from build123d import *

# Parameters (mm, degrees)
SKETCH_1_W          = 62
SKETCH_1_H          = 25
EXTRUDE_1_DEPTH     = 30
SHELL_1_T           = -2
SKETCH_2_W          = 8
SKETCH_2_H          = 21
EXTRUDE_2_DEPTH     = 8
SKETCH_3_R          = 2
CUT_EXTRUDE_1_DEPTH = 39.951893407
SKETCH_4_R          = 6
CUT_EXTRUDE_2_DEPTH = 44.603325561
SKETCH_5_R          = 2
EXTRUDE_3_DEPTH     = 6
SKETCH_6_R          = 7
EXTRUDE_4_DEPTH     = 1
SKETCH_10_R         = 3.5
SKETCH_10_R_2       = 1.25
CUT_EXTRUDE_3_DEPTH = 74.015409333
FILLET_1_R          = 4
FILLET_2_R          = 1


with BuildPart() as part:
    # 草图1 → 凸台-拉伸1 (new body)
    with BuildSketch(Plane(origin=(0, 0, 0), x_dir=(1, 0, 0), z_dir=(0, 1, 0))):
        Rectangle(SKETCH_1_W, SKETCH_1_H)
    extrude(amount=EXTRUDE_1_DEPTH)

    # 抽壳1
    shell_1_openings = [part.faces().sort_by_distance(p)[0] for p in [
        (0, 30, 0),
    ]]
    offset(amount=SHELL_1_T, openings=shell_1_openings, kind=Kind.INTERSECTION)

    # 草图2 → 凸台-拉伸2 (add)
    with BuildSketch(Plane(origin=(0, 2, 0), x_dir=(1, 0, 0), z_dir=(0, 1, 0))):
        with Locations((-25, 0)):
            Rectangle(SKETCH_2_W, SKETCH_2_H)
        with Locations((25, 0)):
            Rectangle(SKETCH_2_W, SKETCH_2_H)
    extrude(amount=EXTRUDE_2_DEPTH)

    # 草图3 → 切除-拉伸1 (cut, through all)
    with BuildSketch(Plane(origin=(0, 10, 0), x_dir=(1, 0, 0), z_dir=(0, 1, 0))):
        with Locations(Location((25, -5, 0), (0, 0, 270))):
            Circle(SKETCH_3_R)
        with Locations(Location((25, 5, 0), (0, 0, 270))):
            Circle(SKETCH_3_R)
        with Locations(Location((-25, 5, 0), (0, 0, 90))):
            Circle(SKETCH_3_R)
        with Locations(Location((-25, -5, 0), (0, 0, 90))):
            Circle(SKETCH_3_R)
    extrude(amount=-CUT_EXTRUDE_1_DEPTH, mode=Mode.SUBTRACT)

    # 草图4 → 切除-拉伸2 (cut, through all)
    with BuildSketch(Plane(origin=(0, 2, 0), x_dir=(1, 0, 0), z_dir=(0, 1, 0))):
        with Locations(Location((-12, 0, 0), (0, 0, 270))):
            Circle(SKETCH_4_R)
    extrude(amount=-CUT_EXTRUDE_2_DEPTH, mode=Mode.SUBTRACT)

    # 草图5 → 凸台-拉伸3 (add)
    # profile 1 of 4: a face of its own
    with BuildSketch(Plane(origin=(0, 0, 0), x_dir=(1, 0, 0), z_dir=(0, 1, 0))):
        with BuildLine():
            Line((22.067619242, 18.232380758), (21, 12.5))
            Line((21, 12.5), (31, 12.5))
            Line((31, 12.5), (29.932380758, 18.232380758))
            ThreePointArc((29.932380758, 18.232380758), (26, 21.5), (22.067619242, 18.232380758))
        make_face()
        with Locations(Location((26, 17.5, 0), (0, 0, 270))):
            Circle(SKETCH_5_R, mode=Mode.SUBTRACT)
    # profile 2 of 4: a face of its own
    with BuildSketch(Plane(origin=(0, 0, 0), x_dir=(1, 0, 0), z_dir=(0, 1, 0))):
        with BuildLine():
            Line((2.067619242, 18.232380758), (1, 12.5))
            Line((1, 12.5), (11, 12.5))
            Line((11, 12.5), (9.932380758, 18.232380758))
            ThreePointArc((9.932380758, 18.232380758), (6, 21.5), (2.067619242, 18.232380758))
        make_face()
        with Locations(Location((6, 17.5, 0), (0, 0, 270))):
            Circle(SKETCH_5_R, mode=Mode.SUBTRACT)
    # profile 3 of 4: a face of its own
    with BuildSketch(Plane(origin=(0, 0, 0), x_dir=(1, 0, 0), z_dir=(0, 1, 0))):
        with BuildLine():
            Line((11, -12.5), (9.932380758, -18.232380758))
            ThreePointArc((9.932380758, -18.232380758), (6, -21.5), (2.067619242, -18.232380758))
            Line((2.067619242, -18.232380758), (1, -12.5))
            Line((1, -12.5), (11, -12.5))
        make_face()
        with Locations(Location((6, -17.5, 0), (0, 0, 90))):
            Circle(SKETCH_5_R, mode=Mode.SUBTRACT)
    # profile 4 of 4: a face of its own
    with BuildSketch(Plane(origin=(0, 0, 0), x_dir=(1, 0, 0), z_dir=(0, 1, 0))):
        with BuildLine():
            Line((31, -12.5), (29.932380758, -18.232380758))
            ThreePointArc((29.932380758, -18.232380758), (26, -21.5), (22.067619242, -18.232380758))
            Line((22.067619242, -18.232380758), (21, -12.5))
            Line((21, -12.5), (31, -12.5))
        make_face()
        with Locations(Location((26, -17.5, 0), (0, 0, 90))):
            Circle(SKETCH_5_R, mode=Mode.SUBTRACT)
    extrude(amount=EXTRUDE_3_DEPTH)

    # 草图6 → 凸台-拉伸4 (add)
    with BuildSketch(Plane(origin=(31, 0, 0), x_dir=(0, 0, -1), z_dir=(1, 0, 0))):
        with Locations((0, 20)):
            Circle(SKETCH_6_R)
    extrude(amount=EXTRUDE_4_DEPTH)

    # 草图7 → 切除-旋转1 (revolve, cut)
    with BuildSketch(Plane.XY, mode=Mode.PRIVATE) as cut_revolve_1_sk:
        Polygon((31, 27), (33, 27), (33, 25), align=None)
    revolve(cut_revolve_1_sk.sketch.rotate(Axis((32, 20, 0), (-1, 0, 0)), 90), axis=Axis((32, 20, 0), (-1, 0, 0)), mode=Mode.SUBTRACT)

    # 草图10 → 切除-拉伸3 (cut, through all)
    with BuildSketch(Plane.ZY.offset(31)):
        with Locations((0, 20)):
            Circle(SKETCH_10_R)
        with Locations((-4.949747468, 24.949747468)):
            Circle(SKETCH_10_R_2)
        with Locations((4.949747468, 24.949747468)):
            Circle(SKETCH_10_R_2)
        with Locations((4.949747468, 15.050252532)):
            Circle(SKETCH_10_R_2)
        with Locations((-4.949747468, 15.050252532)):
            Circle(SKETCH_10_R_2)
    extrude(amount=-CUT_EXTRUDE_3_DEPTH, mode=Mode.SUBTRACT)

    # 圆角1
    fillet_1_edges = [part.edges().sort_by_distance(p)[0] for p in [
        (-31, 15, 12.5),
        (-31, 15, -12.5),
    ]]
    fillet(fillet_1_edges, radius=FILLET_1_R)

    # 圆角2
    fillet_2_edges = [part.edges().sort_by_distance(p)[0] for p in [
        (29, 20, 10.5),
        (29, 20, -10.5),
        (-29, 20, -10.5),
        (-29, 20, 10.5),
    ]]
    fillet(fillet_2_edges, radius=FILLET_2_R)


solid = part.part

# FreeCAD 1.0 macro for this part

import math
import FreeCAD as App
import Part
import Sketcher
from FreeCAD import Vector


def edges_at(feature, points):
    """Names of the edges that pass closest to the given points."""
    edges = feature.Shape.Edges
    near = lambda p: min(range(len(edges)), key=lambda i: edges[i].distToShape(Part.Vertex(*p))[0])
    return sorted({f"Edge{near(p) + 1}" for p in points})


def faces_at(feature, points):
    """Names of the faces that lie closest to the given points."""
    faces = feature.Shape.Faces
    near = lambda p: min(range(len(faces)), key=lambda i: faces[i].distToShape(Part.Vertex(*p))[0])
    return sorted({f"Face{near(p) + 1}" for p in points})

doc = App.newDocument("Part")
body = doc.addObject("PartDesign::Body", "Body")

sketch1 = body.newObject("Sketcher::SketchObject", "Sketch")
sketch1.AttachmentSupport = (doc.getObject("XZ_Plane"), [""])
sketch1.MapMode = "FlatFace"
sketch1.addGeometry([
    Part.LineSegment(Vector(-31, -12, 0), Vector(-31, 12, 0)),
    Part.LineSegment(Vector(-31, 12, 0), Vector(31, 12, 0)),
    Part.LineSegment(Vector(31, 12, 0), Vector(31, -12, 0)),
    Part.LineSegment(Vector(31, -12, 0), Vector(-31, -12, 0)),
], False)
sketch1.addConstraint([
    Sketcher.Constraint("Coincident", 0, 2, 1, 1),
    Sketcher.Constraint("Coincident", 1, 2, 2, 1),
    Sketcher.Constraint("Coincident", 2, 2, 3, 1),
    Sketcher.Constraint("Coincident", 3, 2, 0, 1),
    Sketcher.Constraint("Vertical", 0),
    Sketcher.Constraint("Horizontal", 1),
    Sketcher.Constraint("Vertical", 2),
    Sketcher.Constraint("Horizontal", 3),
    Sketcher.Constraint("Symmetric", 0, 2, 2, 2, -1, 1),
    Sketcher.Constraint("DistanceX", 1, 1, 1, 2, 62.0),
    Sketcher.Constraint("DistanceY", 0, 1, 0, 2, 25.0),
])
pad1 = body.newObject("PartDesign::Pad", "Pad")
pad1.Profile = sketch1
pad1.Length = 30
pad1.Reversed = True
doc.recompute()

thickness = body.newObject("PartDesign::Thickness", "Thickness")
thickness.Base = (pad1, faces_at(pad1, [(0, 30, 0)]))
thickness.Value = 2
thickness.Reversed = True
thickness.Join = "Intersection"

sketch2 = body.newObject("Sketcher::SketchObject", "Sketch001")
sketch2.AttachmentSupport = (doc.getObject("XZ_Plane"), [""])
sketch2.MapMode = "FlatFace"
sketch2.AttachmentOffset = App.Placement(Vector(0, 0, -2), App.Rotation())
sketch2.addGeometry([
    Part.LineSegment(Vector(-29, -10, 0), Vector(-29, 10, 0)),
    Part.LineSegment(Vector(-29, 10, 0), Vector(-21, 10, 0)),
    Part.LineSegment(Vector(-21, 10, 0), Vector(-21, -10, 0)),
    Part.LineSegment(Vector(-21, -10, 0), Vector(-29, -10, 0)),
    Part.LineSegment(Vector(21, -10, 0), Vector(21, 10, 0)),
    Part.LineSegment(Vector(21, 10, 0), Vector(29, 10, 0)),
    Part.LineSegment(Vector(29, 10, 0), Vector(29, -10, 0)),
    Part.LineSegment(Vector(29, -10, 0), Vector(21, -10, 0)),
], False)
sketch2.addConstraint([
    Sketcher.Constraint("Coincident", 0, 2, 1, 1),
    Sketcher.Constraint("Coincident", 1, 2, 2, 1),
    Sketcher.Constraint("Coincident", 2, 2, 3, 1),
    Sketcher.Constraint("Coincident", 3, 2, 0, 1),
    Sketcher.Constraint("Coincident", 4, 2, 5, 1),
    Sketcher.Constraint("Coincident", 5, 2, 6, 1),
    Sketcher.Constraint("Coincident", 6, 2, 7, 1),
    Sketcher.Constraint("Coincident", 7, 2, 4, 1),
    Sketcher.Constraint("Vertical", 0),
    Sketcher.Constraint("Horizontal", 1),
    Sketcher.Constraint("Vertical", 2),
    Sketcher.Constraint("Horizontal", 3),
    Sketcher.Constraint("Vertical", 4),
    Sketcher.Constraint("Horizontal", 5),
    Sketcher.Constraint("Vertical", 6),
    Sketcher.Constraint("Horizontal", 7),
    Sketcher.Constraint("Symmetric", 2, 2, 4, 2, -1, 1),
    Sketcher.Constraint("Symmetric", 0, 2, 6, 2, -1, 1),
    Sketcher.Constraint("Horizontal", 1, 2, 4, 2),
    Sketcher.Constraint("DistanceX", 1, 1, 1, 2, 8.0),
    Sketcher.Constraint("DistanceY", 0, 1, 0, 2, 21.0),
    Sketcher.Constraint("DistanceX", 0, 2, -1, 1, 29.0),
])
pad2 = body.newObject("PartDesign::Pad", "Pad001")
pad2.Profile = sketch2
pad2.Length = 8
pad2.Reversed = True

sketch3 = body.newObject("Sketcher::SketchObject", "Sketch002")
sketch3.AttachmentSupport = (doc.getObject("XZ_Plane"), [""])
sketch3.MapMode = "FlatFace"
sketch3.AttachmentOffset = App.Placement(Vector(0, 0, -10), App.Rotation())
sketch3.addGeometry([
    Part.Circle(Vector(25, 5, 0), Vector(0, 0, 1), 2),
    Part.Circle(Vector(25, -5, 0), Vector(0, 0, 1), 2),
    Part.Circle(Vector(-25, -5, 0), Vector(0, 0, 1), 2),
    Part.Circle(Vector(-25, 5, 0), Vector(0, 0, 1), 2),
], False)
sketch3.addConstraint([
    Sketcher.Constraint("Equal", 0, 1),
    Sketcher.Constraint("Equal", 1, 2),
    Sketcher.Constraint("Equal", 2, 3),
    Sketcher.Constraint("Symmetric", 0, 3, 2, 3, -1, 1),
    Sketcher.Constraint("Symmetric", 1, 3, 3, 3, -1, 1),
    Sketcher.Constraint("Symmetric", 1, 3, 2, 3, -2),
    Sketcher.Constraint("Diameter", 0, 4.0),
    Sketcher.Constraint("DistanceX", -1, 1, 0, 3, 25.0),
    Sketcher.Constraint("DistanceY", -1, 1, 0, 3, 5.0),
])
pocket1 = body.newObject("PartDesign::Pocket", "Pocket")
pocket1.Profile = sketch3
pocket1.Type = "ThroughAll"
pocket1.Reversed = True

sketch4 = body.newObject("Sketcher::SketchObject", "Sketch003")
sketch4.AttachmentSupport = (doc.getObject("XZ_Plane"), [""])
sketch4.MapMode = "FlatFace"
sketch4.AttachmentOffset = App.Placement(Vector(0, 0, -2), App.Rotation())
sketch4.addGeometry(Part.Circle(Vector(-12, 0, 0), Vector(0, 0, 1), 6), False)
sketch4.addConstraint([
    Sketcher.Constraint("PointOnObject", 0, 3, -1),
    Sketcher.Constraint("Diameter", 0, 12.0),
    Sketcher.Constraint("DistanceX", 0, 3, -1, 1, 12.0),
])
pocket2 = body.newObject("PartDesign::Pocket", "Pocket001")
pocket2.Profile = sketch4
pocket2.Type = "ThroughAll"
pocket2.Reversed = True

sketch5 = body.newObject("Sketcher::SketchObject", "Sketch004")
sketch5.AttachmentSupport = (doc.getObject("XZ_Plane"), [""])
sketch5.MapMode = "FlatFace"
sketch5.addGeometry([
    Part.LineSegment(Vector(22.1, -18.2, 0), Vector(21, -12.5, 0)),
    Part.LineSegment(Vector(21, -12.5, 0), Vector(31, -12.5, 0)),
    Part.LineSegment(Vector(31, -12.5, 0), Vector(29.9, -18.2, 0)),
    Part.ArcOfCircle(Part.Circle(Vector(26, -17.5, 0), Vector(0, 0, 1), 4), math.radians(-169), math.radians(-11)),
    Part.Circle(Vector(26, -17.5, 0), Vector(0, 0, 1), 2),
    Part.LineSegment(Vector(2.1, -18.2, 0), Vector(1, -12.5, 0)),
    Part.LineSegment(Vector(1, -12.5, 0), Vector(11, -12.5, 0)),
    Part.LineSegment(Vector(11, -12.5, 0), Vector(9.9, -18.2, 0)),
    Part.ArcOfCircle(Part.Circle(Vector(6, -17.5, 0), Vector(0, 0, 1), 4), math.radians(-169), math.radians(-11)),
    Part.Circle(Vector(6, -17.5, 0), Vector(0, 0, 1), 2),
    Part.LineSegment(Vector(9.9, 18.2, 0), Vector(11, 12.5, 0)),
    Part.LineSegment(Vector(11, 12.5, 0), Vector(1, 12.5, 0)),
    Part.LineSegment(Vector(1, 12.5, 0), Vector(2.1, 18.2, 0)),
    Part.ArcOfCircle(Part.Circle(Vector(6, 17.5, 0), Vector(0, 0, 1), 4), math.radians(11), math.radians(169)),
    Part.Circle(Vector(6, 17.5, 0), Vector(0, 0, 1), 2),
    Part.LineSegment(Vector(29.9, 18.2, 0), Vector(31, 12.5, 0)),
    Part.LineSegment(Vector(31, 12.5, 0), Vector(21, 12.5, 0)),
    Part.LineSegment(Vector(21, 12.5, 0), Vector(22.1, 18.2, 0)),
    Part.ArcOfCircle(Part.Circle(Vector(26, 17.5, 0), Vector(0, 0, 1), 4), math.radians(11), math.radians(169)),
    Part.Circle(Vector(26, 17.5, 0), Vector(0, 0, 1), 2),
], False)
sketch5.addConstraint([
    Sketcher.Constraint("Coincident", 0, 2, 1, 1),
    Sketcher.Constraint("Coincident", 1, 2, 2, 1),
    Sketcher.Constraint("Tangent", 2, 2, 3, 2),
    Sketcher.Constraint("Tangent", 3, 1, 0, 1),
    Sketcher.Constraint("Coincident", 5, 2, 6, 1),
    Sketcher.Constraint("Coincident", 6, 2, 7, 1),
    Sketcher.Constraint("Tangent", 7, 2, 8, 2),
    Sketcher.Constraint("Tangent", 8, 1, 5, 1),
    Sketcher.Constraint("Coincident", 10, 2, 11, 1),
    Sketcher.Constraint("Coincident", 11, 2, 12, 1),
    Sketcher.Constraint("Tangent", 12, 2, 13, 2),
    Sketcher.Constraint("Tangent", 13, 1, 10, 1),
    Sketcher.Constraint("Coincident", 15, 2, 16, 1),
    Sketcher.Constraint("Coincident", 16, 2, 17, 1),
    Sketcher.Constraint("Tangent", 17, 2, 18, 2),
    Sketcher.Constraint("Tangent", 18, 1, 15, 1),
    Sketcher.Constraint("Horizontal", 1),
    Sketcher.Constraint("Horizontal", 6),
    Sketcher.Constraint("Horizontal", 11),
    Sketcher.Constraint("Horizontal", 16),
    Sketcher.Constraint("Coincident", 4, 3, 3, 3),
    Sketcher.Constraint("Coincident", 9, 3, 8, 3),
    Sketcher.Constraint("Coincident", 14, 3, 13, 3),
    Sketcher.Constraint("Coincident", 19, 3, 18, 3),
    Sketcher.Constraint("Equal", 3, 8),
    Sketcher.Constraint("Equal", 4, 9),
    Sketcher.Constraint("Equal", 8, 13),
    Sketcher.Constraint("Equal", 9, 14),
    Sketcher.Constraint("Equal", 13, 18),
    Sketcher.Constraint("Equal", 14, 19),
    Sketcher.Constraint("Symmetric", 8, 3, 13, 3, -1),
    Sketcher.Constraint("Symmetric", 3, 3, 18, 3, -1),
    Sketcher.Constraint("Symmetric", 6, 2, 10, 2, -1),
    Sketcher.Constraint("Symmetric", 1, 2, 15, 2, -1),
    Sketcher.Constraint("Parallel", 0, 5),
    Sketcher.Constraint("Parallel", 2, 7),
    Sketcher.Constraint("Parallel", 5, 10),
    Sketcher.Constraint("Parallel", 7, 12),
    Sketcher.Constraint("Parallel", 12, 17),
    Sketcher.Constraint("Horizontal", 4, 3, 8, 3),
    Sketcher.Constraint("Horizontal", 1, 2, 5, 2),
    Sketcher.Constraint("Diameter", 4, 4.0),
    Sketcher.Constraint("Radius", 3, 4.0),
    Sketcher.Constraint("DistanceX", 1, 1, 1, 2, 10.0),
    Sketcher.Constraint("DistanceX", -1, 1, 3, 3, 26.0),
    Sketcher.Constraint("DistanceX", -1, 1, 8, 3, 6.0),
    Sketcher.Constraint("DistanceY", 8, 3, 13, 3, 35.0),
    Sketcher.Constraint("DistanceY", 3, 3, 0, 2, 5.0),
])
pad3 = body.newObject("PartDesign::Pad", "Pad002")
pad3.Profile = sketch5
pad3.Length = 6
pad3.Reversed = True

sketch6 = body.newObject("Sketcher::SketchObject", "Sketch005")
sketch6.AttachmentSupport = (doc.getObject("YZ_Plane"), [""])
sketch6.MapMode = "FlatFace"
sketch6.AttachmentOffset = App.Placement(Vector(0, 0, 31), App.Rotation())
sketch6.addGeometry(Part.Circle(Vector(20, 0, 0), Vector(0, 0, 1), 7), False)
sketch6.addConstraint([
    Sketcher.Constraint("PointOnObject", 0, 3, -1),
    Sketcher.Constraint("Diameter", 0, 14.0),
    Sketcher.Constraint("DistanceX", -1, 1, 0, 3, 20.0),
])
pad4 = body.newObject("PartDesign::Pad", "Pad003")
pad4.Profile = sketch6
pad4.Length = 1

sketch7 = body.newObject("Sketcher::SketchObject", "Sketch006")
sketch7.AttachmentSupport = (doc.getObject("XY_Plane"), [""])
sketch7.MapMode = "FlatFace"
sketch7.addGeometry([
    Part.LineSegment(Vector(33, 27, 0), Vector(31, 27, 0)),
    Part.LineSegment(Vector(31, 27, 0), Vector(33, 25, 0)),
    Part.LineSegment(Vector(33, 25, 0), Vector(33, 27, 0)),
], False)
sketch7.addGeometry(Part.LineSegment(Vector(33, 20, 0), Vector(31, 20, 0)), True)
sketch7.addConstraint([
    Sketcher.Constraint("Coincident", 0, 2, 1, 1),
    Sketcher.Constraint("Coincident", 1, 2, 2, 1),
    Sketcher.Constraint("Coincident", 2, 2, 0, 1),
    Sketcher.Constraint("Horizontal", 0),
    Sketcher.Constraint("Vertical", 2),
    Sketcher.Constraint("Horizontal", 3),
    Sketcher.Constraint("Vertical", 2, 2, 3, 1),
    Sketcher.Constraint("Vertical", 0, 2, 3, 2),
    Sketcher.Constraint("Equal", 3, 2),
    Sketcher.Constraint("DistanceX", 0, 2, 0, 1, 2.0),
    Sketcher.Constraint("DistanceX", -1, 1, 0, 2, 31.0),
    Sketcher.Constraint("DistanceY", -1, 1, 0, 2, 27.0),
    Sketcher.Constraint("DistanceY", -1, 1, 3, 1, 20.0),
])
groove = body.newObject("PartDesign::Groove", "Groove")
groove.Profile = sketch7
groove.ReferenceAxis = (sketch7, ["Axis0"])
groove.Angle = 360

sketch8 = body.newObject("Sketcher::SketchObject", "Sketch007")
sketch8.AttachmentSupport = (doc.getObject("YZ_Plane"), [""])
sketch8.MapMode = "FlatFace"
sketch8.AttachmentOffset = App.Placement(Vector(0, 0, -31), App.Rotation())
sketch8.addGeometry([
    Part.Circle(Vector(20, 0, 0), Vector(0, 0, 1), 3.5),
    Part.Circle(Vector(24.9, -4.9, 0), Vector(0, 0, 1), 1.2),
    Part.Circle(Vector(24.9, 4.9, 0), Vector(0, 0, 1), 1.2),
    Part.Circle(Vector(15.1, 4.9, 0), Vector(0, 0, 1), 1.2),
    Part.Circle(Vector(15.1, -4.9, 0), Vector(0, 0, 1), 1.2),
], False)
sketch8.addConstraint([
    Sketcher.Constraint("Equal", 1, 2),
    Sketcher.Constraint("Equal", 2, 3),
    Sketcher.Constraint("Equal", 3, 4),
    Sketcher.Constraint("Symmetric", 1, 3, 2, 3, -1),
    Sketcher.Constraint("Symmetric", 3, 3, 4, 3, -1),
    Sketcher.Constraint("PointOnObject", 0, 3, -1),
    Sketcher.Constraint("Horizontal", 2, 3, 3, 3),
    Sketcher.Constraint("Diameter", 0, 7.0),
    Sketcher.Constraint("Diameter", 1, 2.5),
    Sketcher.Constraint("DistanceX", -1, 1, 0, 3, 20.0),
    Sketcher.Constraint("DistanceX", -1, 1, 1, 3, 24.949747),
    Sketcher.Constraint("DistanceY", 1, 3, -1, 1, 4.949747),
    Sketcher.Constraint("DistanceX", -1, 1, 3, 3, 15.050253),
])
pocket3 = body.newObject("PartDesign::Pocket", "Pocket002")
pocket3.Profile = sketch8
pocket3.Type = "ThroughAll"
pocket3.Reversed = True
doc.recompute()

fillet = body.newObject("PartDesign::Fillet", "Fillet")
fillet.Base = (pocket3, edges_at(pocket3, [(-31, 15, 12.5), (-31, 15, -12.5)]))
fillet.Radius = 4
doc.recompute()

fillet2 = body.newObject("PartDesign::Fillet", "Fillet001")
fillet2.Base = (fillet, edges_at(fillet, [
    (29, 20, 10.5),
    (29, 20, -10.5),
    (-29, 20, -10.5),
    (-29, 20, 10.5),
]))
fillet2.Radius = 1

doc.recompute()
